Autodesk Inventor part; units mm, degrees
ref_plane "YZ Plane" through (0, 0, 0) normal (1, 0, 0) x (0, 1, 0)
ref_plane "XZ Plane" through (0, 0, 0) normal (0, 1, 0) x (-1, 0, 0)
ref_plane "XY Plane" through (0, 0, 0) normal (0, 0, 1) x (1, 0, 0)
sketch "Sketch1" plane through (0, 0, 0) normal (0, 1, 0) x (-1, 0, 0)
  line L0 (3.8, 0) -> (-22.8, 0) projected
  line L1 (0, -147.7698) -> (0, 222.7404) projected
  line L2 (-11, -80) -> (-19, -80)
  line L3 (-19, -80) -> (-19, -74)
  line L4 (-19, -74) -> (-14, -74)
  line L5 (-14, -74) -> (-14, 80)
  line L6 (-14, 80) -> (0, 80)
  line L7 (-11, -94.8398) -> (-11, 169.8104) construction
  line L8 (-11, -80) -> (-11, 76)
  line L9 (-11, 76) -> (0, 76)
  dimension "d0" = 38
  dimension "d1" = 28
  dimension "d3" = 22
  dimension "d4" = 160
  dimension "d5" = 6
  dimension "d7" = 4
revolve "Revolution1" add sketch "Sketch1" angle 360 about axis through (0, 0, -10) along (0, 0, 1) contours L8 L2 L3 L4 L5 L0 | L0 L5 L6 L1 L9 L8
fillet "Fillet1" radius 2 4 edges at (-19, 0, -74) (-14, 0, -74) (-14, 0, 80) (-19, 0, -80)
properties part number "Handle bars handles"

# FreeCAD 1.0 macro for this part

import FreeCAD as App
import Part
import Sketcher
Q = App.Units.Quantity


def edges_at(feature, points):
    """Names of the edges that pass closest to the given points."""
    edges = feature.Shape.Edges
    near = lambda p: min(range(len(edges)), key=lambda i: edges[i].distToShape(Part.Vertex(*p))[0])
    return sorted({f"Edge{near(p) + 1}" for p in points})


def add_polygon(sketch, points):
    """Adds a closed chain of lines whose ends are joined by coincident constraints."""
    first, n = sketch.GeometryCount, len(points)
    for a, b in zip(points, points[1:] + points[:1]):
        sketch.addGeometry(Part.LineSegment(App.Vector(*a, 0), App.Vector(*b, 0)), False)
    for i in range(n):
        sketch.addConstraint(Sketcher.Constraint("Coincident", first + i, 2, first + (i + 1) % n, 1))

doc = App.newDocument("Part")
body = doc.addObject("PartDesign::Body", "Body")

sketch1 = body.newObject("Sketcher::SketchObject", "Sketch")
sketch1.AttachmentSupport = (doc.getObject("XZ_Plane"), [""])
sketch1.MapMode = "FlatFace"
add_polygon(sketch1, [(11, -80), (11, 76), (0, 76), (0, 80), (14, 80), (14, -74), (19, -74), (19, -80)])
sketch1.addConstraint([
    Sketcher.Constraint("Vertical", 0),
    Sketcher.Constraint("Horizontal", 1),
    Sketcher.Constraint("Vertical", 2),
    Sketcher.Constraint("Horizontal", 3),
    Sketcher.Constraint("Vertical", 4),
    Sketcher.Constraint("Horizontal", 5),
    Sketcher.Constraint("Vertical", 6),
    Sketcher.Constraint("Horizontal", 7),
    Sketcher.Constraint("PointOnObject", 1, 2, -2),
    Sketcher.Constraint("DistanceY", 2, 1, 2, 2, Q("4 mm")),
    Sketcher.Constraint("DistanceY", 6, 2, 6, 1, Q("6 mm")),
    Sketcher.Constraint("DistanceY", 6, 2, 3, 2, Q("160 mm")),
    Sketcher.Constraint("DistanceX", 1, 2, 1, 1, Q("11 mm")),
    Sketcher.Constraint("DistanceX", 3, 1, 3, 2, Q("14 mm")),
    Sketcher.Constraint("DistanceX", 5, 1, 5, 2, Q("5 mm")),
    Sketcher.Constraint("DistanceY", -1, 1, 0, 2, Q("76 mm")),
])
revolution = body.newObject("PartDesign::Revolution", "Revolution")
revolution.Profile = sketch1
revolution.ReferenceAxis = (sketch1, ["V_Axis"])
revolution.Angle = 360
doc.recompute()

fillet = body.newObject("PartDesign::Fillet", "Fillet")
fillet.Base = (revolution, edges_at(revolution, [
    (-19, 0, -74),
    (-14, 0, -74),
    (-14, 0, 80),
    (-19, 0, -80),
]))
fillet.Radius = 2

doc.recompute()
